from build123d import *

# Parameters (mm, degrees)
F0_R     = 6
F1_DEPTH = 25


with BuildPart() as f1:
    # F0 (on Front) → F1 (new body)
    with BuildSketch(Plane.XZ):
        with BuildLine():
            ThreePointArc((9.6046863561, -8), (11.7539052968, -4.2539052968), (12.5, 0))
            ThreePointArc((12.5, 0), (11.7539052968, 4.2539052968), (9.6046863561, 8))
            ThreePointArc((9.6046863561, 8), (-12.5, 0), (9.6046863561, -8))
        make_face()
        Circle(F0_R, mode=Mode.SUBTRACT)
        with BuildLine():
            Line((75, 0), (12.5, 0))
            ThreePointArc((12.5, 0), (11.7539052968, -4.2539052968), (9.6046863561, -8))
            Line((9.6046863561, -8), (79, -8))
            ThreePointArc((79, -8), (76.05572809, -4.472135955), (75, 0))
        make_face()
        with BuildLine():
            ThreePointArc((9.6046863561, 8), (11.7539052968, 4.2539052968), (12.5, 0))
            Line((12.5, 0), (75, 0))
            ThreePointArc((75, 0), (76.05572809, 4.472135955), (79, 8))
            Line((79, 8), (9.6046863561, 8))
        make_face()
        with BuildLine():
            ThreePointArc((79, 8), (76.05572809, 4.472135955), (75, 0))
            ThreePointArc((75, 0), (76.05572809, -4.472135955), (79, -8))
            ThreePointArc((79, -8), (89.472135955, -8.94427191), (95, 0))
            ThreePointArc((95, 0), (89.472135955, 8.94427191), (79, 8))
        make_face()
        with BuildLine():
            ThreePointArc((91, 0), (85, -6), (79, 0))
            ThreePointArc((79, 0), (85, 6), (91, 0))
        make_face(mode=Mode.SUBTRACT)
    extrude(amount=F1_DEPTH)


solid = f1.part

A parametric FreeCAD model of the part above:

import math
import FreeCAD as App
import Part
import Sketcher

V = App.Vector

doc = App.newDocument("Part")
body = doc.addObject("PartDesign::Body", "Body")

# Sketch on XZ plane
sketch1 = doc.addObject("Sketcher::SketchObject", "Sketch")
body.addObject(sketch1)
sketch1.AttachmentSupport = (doc.XZ_Plane, [""])
sketch1.MapMode = "FlatFace"
sketch1.addGeometry([
    Part.ArcOfCircle(Part.Circle(V(0, 0, 0), V(0, 0, 1), 12.5), math.radians(39.791819), math.radians(320.208181)),  # 0
    Part.LineSegment(V(9.604686, -8, 0), V(79, -8, 0)),  # 1
    Part.ArcOfCircle(Part.Circle(V(85, 0, 0), V(0, 0, 1), 10), math.radians(-126.869898), math.radians(126.869898)),  # 2
    Part.LineSegment(V(79, 8, 0), V(9.604686, 8, 0)),  # 3
    Part.Circle(V(0, 0, 0), V(0, 0, 1), 6),  # 4
    Part.Circle(V(85, 0, 0), V(0, 0, 1), 6),  # 5
], False)
sketch1.addConstraint([
    Sketcher.Constraint("Coincident", 0, 2, 1, 1),
    Sketcher.Constraint("Coincident", 1, 2, 2, 1),
    Sketcher.Constraint("Coincident", 2, 2, 3, 1),
    Sketcher.Constraint("Coincident", 3, 2, 0, 1),
    Sketcher.Constraint("Horizontal", 1),
    Sketcher.Constraint("Horizontal", 3),
    Sketcher.Constraint("Coincident", 0, 3, -1, 1),
    Sketcher.Constraint("Coincident", 4, 3, -1, 1),
    Sketcher.Constraint("Coincident", 5, 3, 2, 3),
    Sketcher.Constraint("Equal", 4, 5),
    Sketcher.Constraint("Symmetric", 1, 2, 2, 2, -1),
    Sketcher.Constraint("Diameter", 4, 12.0),
    Sketcher.Constraint("Radius", 2, 10.0),
    Sketcher.Constraint("Radius", 0, 12.5),
    Sketcher.Constraint("DistanceX", -1, 1, 2, 3, 85.0),
    Sketcher.Constraint("DistanceY", 0, 2, -1, 1, 8.0),
])
pad1 = doc.addObject("PartDesign::Pad", "Pad")
body.addObject(pad1)
pad1.Profile = sketch1
pad1.Length = 25

doc.recompute()
